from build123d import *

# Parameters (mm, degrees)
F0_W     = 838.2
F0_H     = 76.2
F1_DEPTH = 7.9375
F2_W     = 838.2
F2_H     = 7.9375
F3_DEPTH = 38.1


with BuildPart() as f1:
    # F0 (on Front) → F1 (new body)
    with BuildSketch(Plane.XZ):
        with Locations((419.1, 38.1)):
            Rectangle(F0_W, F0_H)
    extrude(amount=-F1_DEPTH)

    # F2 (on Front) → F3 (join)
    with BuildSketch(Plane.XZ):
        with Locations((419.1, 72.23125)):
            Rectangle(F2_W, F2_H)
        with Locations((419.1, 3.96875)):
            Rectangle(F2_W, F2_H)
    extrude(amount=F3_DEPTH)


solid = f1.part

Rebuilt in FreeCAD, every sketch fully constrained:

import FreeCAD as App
import Part
import Sketcher
Q = App.Units.Quantity


def add_polygon(sketch, points):
    """Adds a closed chain of lines whose ends are joined by coincident constraints."""
    first, n = sketch.GeometryCount, len(points)
    for a, b in zip(points, points[1:] + points[:1]):
        sketch.addGeometry(Part.LineSegment(App.Vector(*a, 0), App.Vector(*b, 0)), False)
    for i in range(n):
        sketch.addConstraint(Sketcher.Constraint("Coincident", first + i, 2, first + (i + 1) % n, 1))

doc = App.newDocument("Part")
body = doc.addObject("PartDesign::Body", "Body")

# Sketch on XZ plane
sketch1 = body.newObject("Sketcher::SketchObject", "Sketch")
sketch1.AttachmentSupport = (doc.getObject("XZ_Plane"), [""])
sketch1.MapMode = "FlatFace"
add_polygon(sketch1, [(0, 76), (0, 0), (838, 0), (838, 76)])  # lines 0-3
sketch1.addConstraint([
    Sketcher.Constraint("Vertical", 0),
    Sketcher.Constraint("Horizontal", 1),
    Sketcher.Constraint("Vertical", 2),
    Sketcher.Constraint("Horizontal", 3),
    Sketcher.Constraint("Coincident", 0, 2, -1, 1),
    Sketcher.Constraint("DistanceX", 1, 1, 1, 2, Q("33 in")),
    Sketcher.Constraint("DistanceY", 0, 2, 0, 1, Q("3 in")),
])
pad1 = body.newObject("PartDesign::Pad", "Pad")
pad1.Profile = sketch1
pad1.Length = Q("0.3125 in")
pad1.Reversed = True

# Sketch on XZ plane
sketch2 = body.newObject("Sketcher::SketchObject", "Sketch001")
sketch2.AttachmentSupport = (doc.getObject("XZ_Plane"), [""])
sketch2.MapMode = "FlatFace"
add_polygon(sketch2, [(0, 76), (0, 68), (838, 68), (838, 76)])  # lines 0-3
add_polygon(sketch2, [(0, 8), (0, 0), (838, 0), (838, 8)])  # lines 4-7
sketch2.addConstraint([
    Sketcher.Constraint("Vertical", 0),
    Sketcher.Constraint("Horizontal", 1),
    Sketcher.Constraint("Vertical", 2),
    Sketcher.Constraint("Horizontal", 3),
    Sketcher.Constraint("Vertical", 4),
    Sketcher.Constraint("Horizontal", 5),
    Sketcher.Constraint("Vertical", 6),
    Sketcher.Constraint("Horizontal", 7),
    Sketcher.Constraint("Coincident", 4, 2, -1, 1),
    Sketcher.Constraint("PointOnObject", 0, 2, -2),
    Sketcher.Constraint("Vertical", 2, 2, 5, 2),
    Sketcher.Constraint("Equal", 2, 4),
    Sketcher.Constraint("DistanceX", 1, 1, 1, 2, Q("33 in")),
    Sketcher.Constraint("DistanceY", -1, 1, 2, 2, Q("3 in")),
    Sketcher.Constraint("DistanceY", 0, 2, 0, 1, Q("0.3125 in")),
])
pad2 = body.newObject("PartDesign::Pad", "Pad001")
pad2.Profile = sketch2
pad2.Length = Q("1.5 in")

doc.recompute()
